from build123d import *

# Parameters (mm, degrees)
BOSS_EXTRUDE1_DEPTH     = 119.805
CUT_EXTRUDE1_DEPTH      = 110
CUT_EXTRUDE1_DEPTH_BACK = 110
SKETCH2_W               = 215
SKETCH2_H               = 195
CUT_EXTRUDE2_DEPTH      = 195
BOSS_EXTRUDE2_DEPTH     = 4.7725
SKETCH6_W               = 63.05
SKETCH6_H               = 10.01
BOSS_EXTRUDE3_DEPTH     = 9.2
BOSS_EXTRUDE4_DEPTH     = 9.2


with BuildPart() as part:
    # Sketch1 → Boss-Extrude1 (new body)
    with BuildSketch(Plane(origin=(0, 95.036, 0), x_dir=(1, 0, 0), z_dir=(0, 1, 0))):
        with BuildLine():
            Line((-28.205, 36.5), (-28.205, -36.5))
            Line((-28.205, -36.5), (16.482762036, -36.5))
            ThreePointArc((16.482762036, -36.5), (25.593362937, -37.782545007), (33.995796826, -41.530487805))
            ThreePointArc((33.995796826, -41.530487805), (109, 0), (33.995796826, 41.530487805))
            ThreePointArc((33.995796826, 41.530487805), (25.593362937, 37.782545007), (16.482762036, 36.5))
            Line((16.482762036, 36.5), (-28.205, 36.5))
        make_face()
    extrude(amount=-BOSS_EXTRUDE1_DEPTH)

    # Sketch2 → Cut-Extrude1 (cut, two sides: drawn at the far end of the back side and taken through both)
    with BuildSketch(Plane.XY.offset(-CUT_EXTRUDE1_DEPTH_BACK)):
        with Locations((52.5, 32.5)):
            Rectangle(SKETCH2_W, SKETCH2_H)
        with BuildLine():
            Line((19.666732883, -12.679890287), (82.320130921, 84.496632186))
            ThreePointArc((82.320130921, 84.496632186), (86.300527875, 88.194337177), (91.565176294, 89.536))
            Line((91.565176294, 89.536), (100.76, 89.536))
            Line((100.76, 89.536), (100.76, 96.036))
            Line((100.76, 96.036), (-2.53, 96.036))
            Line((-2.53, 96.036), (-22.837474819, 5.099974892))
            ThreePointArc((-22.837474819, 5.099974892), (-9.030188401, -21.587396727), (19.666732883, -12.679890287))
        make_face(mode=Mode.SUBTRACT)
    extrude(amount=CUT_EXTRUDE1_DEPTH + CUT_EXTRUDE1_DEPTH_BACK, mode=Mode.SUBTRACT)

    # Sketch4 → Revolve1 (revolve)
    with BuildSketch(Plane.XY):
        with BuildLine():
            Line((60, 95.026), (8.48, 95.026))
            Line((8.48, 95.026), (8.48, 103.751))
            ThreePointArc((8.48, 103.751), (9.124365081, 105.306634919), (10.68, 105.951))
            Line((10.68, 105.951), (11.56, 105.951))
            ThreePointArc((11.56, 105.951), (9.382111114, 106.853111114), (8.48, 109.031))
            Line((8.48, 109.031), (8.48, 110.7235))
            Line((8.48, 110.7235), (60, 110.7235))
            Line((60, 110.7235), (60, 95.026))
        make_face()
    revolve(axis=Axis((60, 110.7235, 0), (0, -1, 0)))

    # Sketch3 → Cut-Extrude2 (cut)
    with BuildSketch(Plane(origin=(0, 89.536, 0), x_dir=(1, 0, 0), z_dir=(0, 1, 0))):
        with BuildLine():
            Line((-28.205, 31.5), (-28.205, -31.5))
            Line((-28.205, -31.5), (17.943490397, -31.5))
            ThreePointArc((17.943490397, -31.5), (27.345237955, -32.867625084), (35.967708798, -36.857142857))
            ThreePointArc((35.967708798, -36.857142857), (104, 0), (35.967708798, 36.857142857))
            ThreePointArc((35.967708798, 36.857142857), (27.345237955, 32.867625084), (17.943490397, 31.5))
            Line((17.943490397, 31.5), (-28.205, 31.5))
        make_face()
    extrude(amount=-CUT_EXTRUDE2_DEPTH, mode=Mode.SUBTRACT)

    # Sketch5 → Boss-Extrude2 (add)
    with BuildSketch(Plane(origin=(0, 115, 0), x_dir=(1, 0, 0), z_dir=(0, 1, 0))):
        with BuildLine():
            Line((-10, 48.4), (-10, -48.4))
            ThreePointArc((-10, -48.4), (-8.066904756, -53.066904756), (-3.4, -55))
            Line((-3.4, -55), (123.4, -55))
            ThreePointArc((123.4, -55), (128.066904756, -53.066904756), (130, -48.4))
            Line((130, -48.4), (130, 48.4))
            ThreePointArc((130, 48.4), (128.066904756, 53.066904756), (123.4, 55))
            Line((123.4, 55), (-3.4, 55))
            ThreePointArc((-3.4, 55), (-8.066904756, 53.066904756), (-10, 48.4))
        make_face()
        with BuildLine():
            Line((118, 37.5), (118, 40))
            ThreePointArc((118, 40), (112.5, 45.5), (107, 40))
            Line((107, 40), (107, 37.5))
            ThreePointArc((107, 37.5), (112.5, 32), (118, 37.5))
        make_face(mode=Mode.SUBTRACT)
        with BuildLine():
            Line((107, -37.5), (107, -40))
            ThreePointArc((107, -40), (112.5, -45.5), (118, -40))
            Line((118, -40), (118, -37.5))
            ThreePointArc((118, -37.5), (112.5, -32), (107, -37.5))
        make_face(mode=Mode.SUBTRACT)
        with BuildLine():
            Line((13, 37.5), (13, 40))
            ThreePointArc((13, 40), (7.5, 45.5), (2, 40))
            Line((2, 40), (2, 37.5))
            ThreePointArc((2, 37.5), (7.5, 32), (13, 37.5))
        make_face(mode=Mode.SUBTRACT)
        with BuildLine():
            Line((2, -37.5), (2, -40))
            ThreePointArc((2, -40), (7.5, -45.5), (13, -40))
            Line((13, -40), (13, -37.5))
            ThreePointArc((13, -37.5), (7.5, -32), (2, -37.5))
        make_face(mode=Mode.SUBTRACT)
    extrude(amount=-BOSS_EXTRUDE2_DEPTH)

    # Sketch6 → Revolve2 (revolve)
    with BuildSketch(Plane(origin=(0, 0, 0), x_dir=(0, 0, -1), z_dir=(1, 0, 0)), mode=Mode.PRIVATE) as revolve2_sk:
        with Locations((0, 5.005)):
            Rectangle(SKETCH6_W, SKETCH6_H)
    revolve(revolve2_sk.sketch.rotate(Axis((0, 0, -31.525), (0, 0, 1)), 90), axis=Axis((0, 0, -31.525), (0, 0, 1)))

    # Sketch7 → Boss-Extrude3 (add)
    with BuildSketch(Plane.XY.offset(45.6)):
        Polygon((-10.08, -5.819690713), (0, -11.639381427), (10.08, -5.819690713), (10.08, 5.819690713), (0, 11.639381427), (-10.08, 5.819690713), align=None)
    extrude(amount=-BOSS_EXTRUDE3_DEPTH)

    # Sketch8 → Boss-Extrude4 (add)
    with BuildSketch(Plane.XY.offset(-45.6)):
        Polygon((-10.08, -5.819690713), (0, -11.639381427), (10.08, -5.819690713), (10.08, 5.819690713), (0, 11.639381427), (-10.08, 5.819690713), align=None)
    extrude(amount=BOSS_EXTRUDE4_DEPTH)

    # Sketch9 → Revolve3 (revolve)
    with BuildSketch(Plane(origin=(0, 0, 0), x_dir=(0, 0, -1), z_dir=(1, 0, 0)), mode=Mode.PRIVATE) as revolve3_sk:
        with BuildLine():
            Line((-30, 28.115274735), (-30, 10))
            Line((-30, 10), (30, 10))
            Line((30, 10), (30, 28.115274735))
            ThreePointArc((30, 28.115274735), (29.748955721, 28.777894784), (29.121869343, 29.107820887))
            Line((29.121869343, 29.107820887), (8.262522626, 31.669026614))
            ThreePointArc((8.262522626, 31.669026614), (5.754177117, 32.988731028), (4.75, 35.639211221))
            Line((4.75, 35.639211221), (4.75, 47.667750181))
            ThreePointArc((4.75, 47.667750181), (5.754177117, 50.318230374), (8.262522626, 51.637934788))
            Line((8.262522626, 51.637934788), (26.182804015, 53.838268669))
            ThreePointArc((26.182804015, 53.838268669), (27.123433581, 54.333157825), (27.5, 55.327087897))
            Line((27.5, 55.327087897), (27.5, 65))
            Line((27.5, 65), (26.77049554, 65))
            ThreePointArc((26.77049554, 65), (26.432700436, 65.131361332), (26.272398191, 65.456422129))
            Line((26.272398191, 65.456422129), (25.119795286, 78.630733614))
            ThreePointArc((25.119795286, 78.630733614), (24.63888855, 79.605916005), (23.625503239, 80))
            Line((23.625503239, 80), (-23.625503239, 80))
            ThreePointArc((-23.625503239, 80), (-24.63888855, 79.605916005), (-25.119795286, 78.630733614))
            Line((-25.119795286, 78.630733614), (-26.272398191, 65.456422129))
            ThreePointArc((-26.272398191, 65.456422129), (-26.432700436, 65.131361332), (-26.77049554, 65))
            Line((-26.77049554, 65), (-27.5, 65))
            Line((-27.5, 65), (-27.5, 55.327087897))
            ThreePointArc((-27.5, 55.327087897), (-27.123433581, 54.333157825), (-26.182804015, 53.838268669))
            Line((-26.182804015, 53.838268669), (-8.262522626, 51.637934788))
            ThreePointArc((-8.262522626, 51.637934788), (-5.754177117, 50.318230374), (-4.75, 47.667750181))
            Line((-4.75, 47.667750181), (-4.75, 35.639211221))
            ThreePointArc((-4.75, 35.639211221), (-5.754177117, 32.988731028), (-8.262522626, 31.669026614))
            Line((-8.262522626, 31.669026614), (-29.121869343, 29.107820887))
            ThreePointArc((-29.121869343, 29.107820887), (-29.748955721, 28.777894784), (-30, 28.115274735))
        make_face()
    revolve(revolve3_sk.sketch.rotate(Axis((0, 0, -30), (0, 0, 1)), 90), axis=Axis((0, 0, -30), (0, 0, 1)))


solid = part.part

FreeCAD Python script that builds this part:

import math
import FreeCAD as App
import Part
import Sketcher
from FreeCAD import Vector
Q = App.Units.Quantity

doc = App.newDocument("Part")
body = doc.addObject("PartDesign::Body", "Body")

# Sketch on XZ plane
sketch1 = doc.addObject("Sketcher::SketchObject", "Sketch")
body.addObject(sketch1)
sketch1.AttachmentSupport = (doc.XZ_Plane, [""])
sketch1.MapMode = "FlatFace"
sketch1.AttachmentOffset = App.Placement(Vector(0, 0, -95.036), App.Rotation())
sketch1.addGeometry([
    Part.LineSegment(Vector(-28, -36, 0), Vector(-28, 36, 0)),  # 0
    Part.LineSegment(Vector(-28, 36, 0), Vector(16, 36, 0)),  # 1
    Part.ArcOfCircle(Part.Circle(Vector(16, 69, 0), Vector(0, 0, 1), 33), math.radians(-90), math.radians(-58)),  # 2
    Part.ArcOfCircle(Part.Circle(Vector(60, 0, 0), Vector(0, 0, 1), 49), math.radians(-122), math.radians(122)),  # 3
    Part.ArcOfCircle(Part.Circle(Vector(16, -69, 0), Vector(0, 0, 1), 33), math.radians(58), math.radians(90)),  # 4
    Part.LineSegment(Vector(16, -36, 0), Vector(-28, -36, 0)),  # 5
], False)
sketch1.addConstraint([
    Sketcher.Constraint("Coincident", 0, 2, 1, 1),
    Sketcher.Constraint("Tangent", 1, 2, 2, 1),
    Sketcher.Constraint("Tangent", 2, 2, 3, 2),
    Sketcher.Constraint("Tangent", 3, 1, 4, 1),
    Sketcher.Constraint("Tangent", 4, 2, 5, 1),
    Sketcher.Constraint("Coincident", 5, 2, 0, 1),
    Sketcher.Constraint("Vertical", 0),
    Sketcher.Constraint("Horizontal", 1),
    Sketcher.Constraint("Horizontal", 5),
    Sketcher.Constraint("Equal", 2, 4),
    Sketcher.Constraint("Symmetric", 2, 3, 4, 3, -1),
    Sketcher.Constraint("Radius", 2, Q("33 mm")),
    Sketcher.Constraint("Radius", 3, Q("49 mm")),
    Sketcher.Constraint("DistanceY", 0, 1, 0, 2, Q("73 mm")),
    Sketcher.Constraint("DistanceX", -1, 1, 3, 3, Q("60 mm")),
    Sketcher.Constraint("DistanceX", 0, 2, -1, 1, Q("28.205 mm")),
])
pad1 = doc.addObject("PartDesign::Pad", "Pad")
body.addObject(pad1)
pad1.Profile = sketch1
pad1.Length = 119.805

# Sketch on XY plane
sketch2 = doc.addObject("Sketcher::SketchObject", "Sketch001")
body.addObject(sketch2)
sketch2.AttachmentSupport = (doc.XY_Plane, [""])
sketch2.MapMode = "FlatFace"
sketch2.addGeometry([
    Part.LineSegment(Vector(-55, 130, 0), Vector(-55, -65, 0)),  # 0
    Part.LineSegment(Vector(-55, -65, 0), Vector(160, -65, 0)),  # 1
    Part.LineSegment(Vector(160, -65, 0), Vector(160, 130, 0)),  # 2
    Part.LineSegment(Vector(160, 130, 0), Vector(-55, 130, 0)),  # 3
    Part.LineSegment(Vector(82, 84, 0), Vector(20, -13, 0)),  # 4
    Part.ArcOfCircle(Part.Circle(Vector(0, 0, 0), Vector(0, 0, 1), 23), math.radians(167), math.radians(327)),  # 5
    Part.LineSegment(Vector(-23, 5, 0), Vector(-3, 96, 0)),  # 6
    Part.LineSegment(Vector(-3, 96, 0), Vector(101, 96, 0)),  # 7
    Part.LineSegment(Vector(101, 96, 0), Vector(101, 90, 0)),  # 8
    Part.LineSegment(Vector(101, 90, 0), Vector(92, 90, 0)),  # 9
    Part.ArcOfCircle(Part.Circle(Vector(92, 79, 0), Vector(0, 0, 1), 11), math.radians(90), math.radians(147)),  # 10
], False)
sketch2.addConstraint([
    Sketcher.Constraint("Coincident", 0, 2, 1, 1),
    Sketcher.Constraint("Coincident", 1, 2, 2, 1),
    Sketcher.Constraint("Coincident", 2, 2, 3, 1),
    Sketcher.Constraint("Coincident", 3, 2, 0, 1),
    Sketcher.Constraint("Tangent", 4, 2, 5, 2),
    Sketcher.Constraint("Tangent", 5, 1, 6, 1),
    Sketcher.Constraint("Coincident", 6, 2, 7, 1),
    Sketcher.Constraint("Coincident", 7, 2, 8, 1),
    Sketcher.Constraint("Coincident", 8, 2, 9, 1),
    Sketcher.Constraint("Tangent", 9, 2, 10, 1),
    Sketcher.Constraint("Tangent", 10, 2, 4, 1),
    Sketcher.Constraint("Vertical", 0),
    Sketcher.Constraint("Horizontal", 1),
    Sketcher.Constraint("Vertical", 2),
    Sketcher.Constraint("Horizontal", 3),
    Sketcher.Constraint("Horizontal", 7),
    Sketcher.Constraint("Vertical", 8),
    Sketcher.Constraint("Horizontal", 9),
    Sketcher.Constraint("Coincident", 5, 3, -1, 1),
    Sketcher.Constraint("Radius", 10, Q("11 mm")),
    Sketcher.Constraint("Radius", 5, Q("23.4 mm")),
    Sketcher.Constraint("DistanceX", 1, 1, 1, 2, Q("215 mm")),
    Sketcher.Constraint("DistanceY", 0, 2, 0, 1, Q("195 mm")),
    Sketcher.Constraint("DistanceY", 8, 2, 8, 1, Q("6.5 mm")),
    Sketcher.Constraint("DistanceX", 0, 2, -1, 1, Q("55 mm")),
    Sketcher.Constraint("DistanceY", 0, 2, -1, 1, Q("65 mm")),
    Sketcher.Constraint("DistanceX", 7, 1, 7, 2, Q("103.29 mm")),
    Sketcher.Constraint("DistanceX", 6, 2, -1, 1, Q("2.53 mm")),
    Sketcher.Constraint("DistanceY", -1, 1, 10, 3, Q("78.536 mm")),
    Sketcher.Constraint("Distance", 4, Q("115.623202 mm")),
])
pocket1 = doc.addObject("PartDesign::Pocket", "Pocket")
body.addObject(pocket1)
pocket1.Profile = sketch2
pocket1.Type = "ThroughAll"
pocket1.Midplane = True

# Sketch on XY plane
sketch3 = doc.addObject("Sketcher::SketchObject", "Sketch002")
body.addObject(sketch3)
sketch3.AttachmentSupport = (doc.XY_Plane, [""])
sketch3.MapMode = "FlatFace"
sketch3.addGeometry([
    Part.LineSegment(Vector(8.5, 95, 0), Vector(60, 95, 0)),  # 0
    Part.LineSegment(Vector(60, 95, 0), Vector(60, 110.7, 0)),  # 1
    Part.LineSegment(Vector(60, 110.7, 0), Vector(8.5, 110.7, 0)),  # 2
    Part.LineSegment(Vector(8.5, 110.7, 0), Vector(8.5, 109, 0)),  # 3
    Part.ArcOfCircle(Part.Circle(Vector(11.6, 109, 0), Vector(0, 0, 1), 3.1), math.radians(180), math.radians(270)),  # 4
    Part.LineSegment(Vector(11.6, 106, 0), Vector(10.7, 106, 0)),  # 5
    Part.ArcOfCircle(Part.Circle(Vector(10.7, 103.8, 0), Vector(0, 0, 1), 2.2), math.radians(90), math.radians(180)),  # 6
    Part.LineSegment(Vector(8.5, 103.8, 0), Vector(8.5, 95, 0)),  # 7
], False)
sketch3.addGeometry(Part.LineSegment(Vector(60, 110.7, 0), Vector(60, 95, 0)), True)  # axis
sketch3.addConstraint([
    Sketcher.Constraint("Coincident", 0, 2, 1, 1),
    Sketcher.Constraint("Coincident", 1, 2, 2, 1),
    Sketcher.Constraint("Coincident", 2, 2, 3, 1),
    Sketcher.Constraint("Tangent", 3, 2, 4, 1),
    Sketcher.Constraint("Tangent", 4, 2, 5, 1),
    Sketcher.Constraint("Tangent", 5, 2, 6, 1),
    Sketcher.Constraint("Tangent", 6, 2, 7, 1),
    Sketcher.Constraint("Coincident", 7, 2, 0, 1),
    Sketcher.Constraint("Horizontal", 0),
    Sketcher.Constraint("Vertical", 1),
    Sketcher.Constraint("Horizontal", 2),
    Sketcher.Constraint("Vertical", 3),
    Sketcher.Constraint("Horizontal", 5),
    Sketcher.Constraint("Vertical", 7),
    Sketcher.Constraint("Vertical", 8),
    Sketcher.Constraint("Coincident", 8, 1, 1, 2),
    Sketcher.Constraint("Horizontal", 7, 2, 8, 2),
    Sketcher.Constraint("Vertical", 3, 2, 6, 2),
    Sketcher.Constraint("Radius", 6, Q("2.2 mm")),
    Sketcher.Constraint("Radius", 4, Q("3.08 mm")),
    Sketcher.Constraint("DistanceX", -1, 1, 0, 2, Q("60 mm")),
    Sketcher.Constraint("DistanceX", 0, 1, 0, 2, Q("51.52 mm")),
    Sketcher.Constraint("DistanceY", 7, 2, 7, 1, Q("8.725 mm")),
    Sketcher.Constraint("DistanceY", 1, 1, 1, 2, Q("15.6975 mm")),
    Sketcher.Constraint("DistanceY", -1, 1, 4, 3, Q("109.031 mm")),
])
revolution = doc.addObject("PartDesign::Revolution", "Revolution")
body.addObject(revolution)
revolution.Profile = sketch3
revolution.ReferenceAxis = (sketch3, ["Axis0"])
revolution.Angle = 360

# Sketch on XZ plane
sketch4 = doc.addObject("Sketcher::SketchObject", "Sketch003")
body.addObject(sketch4)
sketch4.AttachmentSupport = (doc.XZ_Plane, [""])
sketch4.MapMode = "FlatFace"
sketch4.AttachmentOffset = App.Placement(Vector(0, 0, -89.536), App.Rotation())
sketch4.addGeometry([
    Part.LineSegment(Vector(-28, -32, 0), Vector(-28, 32, 0)),  # 0
    Part.LineSegment(Vector(-28, 32, 0), Vector(18, 32, 0)),  # 1
    Part.ArcOfCircle(Part.Circle(Vector(18, 65, 0), Vector(0, 0, 1), 33), math.radians(-90), math.radians(-57)),  # 2
    Part.ArcOfCircle(Part.Circle(Vector(60, 0, 0), Vector(0, 0, 1), 44), math.radians(-123), math.radians(123)),  # 3
    Part.ArcOfCircle(Part.Circle(Vector(18, -65, 0), Vector(0, 0, 1), 33), math.radians(57), math.radians(90)),  # 4
    Part.LineSegment(Vector(18, -32, 0), Vector(-28, -32, 0)),  # 5
], False)
sketch4.addConstraint([
    Sketcher.Constraint("Coincident", 0, 2, 1, 1),
    Sketcher.Constraint("Tangent", 1, 2, 2, 1),
    Sketcher.Constraint("Tangent", 2, 2, 3, 2),
    Sketcher.Constraint("Tangent", 3, 1, 4, 1),
    Sketcher.Constraint("Tangent", 4, 2, 5, 1),
    Sketcher.Constraint("Coincident", 5, 2, 0, 1),
    Sketcher.Constraint("Vertical", 0),
    Sketcher.Constraint("Horizontal", 1),
    Sketcher.Constraint("Horizontal", 5),
    Sketcher.Constraint("Equal", 2, 4),
    Sketcher.Constraint("Symmetric", 2, 3, 4, 3, -1),
    Sketcher.Constraint("Radius", 2, Q("33 mm")),
    Sketcher.Constraint("Radius", 3, Q("44 mm")),
    Sketcher.Constraint("DistanceY", 0, 1, 0, 2, Q("63 mm")),
    Sketcher.Constraint("DistanceX", -1, 1, 3, 3, Q("60 mm")),
    Sketcher.Constraint("DistanceX", 0, 2, -1, 1, Q("28.205 mm")),
])
pocket2 = doc.addObject("PartDesign::Pocket", "Pocket001")
body.addObject(pocket2)
pocket2.Profile = sketch4
pocket2.Length = 195
pocket2.Reversed = True

# Sketch on XZ plane
sketch5 = doc.addObject("Sketcher::SketchObject", "Sketch004")
body.addObject(sketch5)
sketch5.AttachmentSupport = (doc.XZ_Plane, [""])
sketch5.MapMode = "FlatFace"
sketch5.AttachmentOffset = App.Placement(Vector(0, 0, -115), App.Rotation())
sketch5.addGeometry([
    Part.LineSegment(Vector(-10, -48.4, 0), Vector(-10, 48.4, 0)),  # 0
    Part.ArcOfCircle(Part.Circle(Vector(-3.4, 48.4, 0), Vector(0, 0, 1), 6.6), math.radians(90), math.radians(180)),  # 1
    Part.LineSegment(Vector(-3.4, 55, 0), Vector(123.4, 55, 0)),  # 2
    Part.ArcOfCircle(Part.Circle(Vector(123.4, 48.4, 0), Vector(0, 0, 1), 6.6), math.radians(0), math.radians(90)),  # 3
    Part.LineSegment(Vector(130, 48.4, 0), Vector(130, -48.4, 0)),  # 4
    Part.ArcOfCircle(Part.Circle(Vector(123.4, -48.4, 0), Vector(0, 0, 1), 6.6), math.radians(-90), math.radians(0)),  # 5
    Part.LineSegment(Vector(123.4, -55, 0), Vector(-3.4, -55, 0)),  # 6
    Part.ArcOfCircle(Part.Circle(Vector(-3.4, -48.4, 0), Vector(0, 0, 1), 6.6), math.radians(180), math.radians(270)),  # 7
    Part.LineSegment(Vector(2, 40, 0), Vector(2, 37.5, 0)),  # 8
    Part.ArcOfCircle(Part.Circle(Vector(7.5, 37.5, 0), Vector(0, 0, 1), 5.5), math.radians(180), math.radians(360)),  # 9
    Part.LineSegment(Vector(13, 37.5, 0), Vector(13, 40, 0)),  # 10
    Part.ArcOfCircle(Part.Circle(Vector(7.5, 40, 0), Vector(0, 0, 1), 5.5), math.radians(0), math.radians(180)),  # 11
    Part.LineSegment(Vector(107, 40, 0), Vector(107, 37.5, 0)),  # 12
    Part.ArcOfCircle(Part.Circle(Vector(112.5, 37.5, 0), Vector(0, 0, 1), 5.5), math.radians(180), math.radians(360)),  # 13
    Part.LineSegment(Vector(118, 37.5, 0), Vector(118, 40, 0)),  # 14
    Part.ArcOfCircle(Part.Circle(Vector(112.5, 40, 0), Vector(0, 0, 1), 5.5), math.radians(0), math.radians(180)),  # 15
    Part.LineSegment(Vector(13, -40, 0), Vector(13, -37.5, 0)),  # 16
    Part.ArcOfCircle(Part.Circle(Vector(7.5, -37.5, 0), Vector(0, 0, 1), 5.5), math.radians(0), math.radians(180)),  # 17
    Part.LineSegment(Vector(2, -37.5, 0), Vector(2, -40, 0)),  # 18
    Part.ArcOfCircle(Part.Circle(Vector(7.5, -40, 0), Vector(0, 0, 1), 5.5), math.radians(180), math.radians(360)),  # 19
    Part.LineSegment(Vector(118, -40, 0), Vector(118, -37.5, 0)),  # 20
    Part.ArcOfCircle(Part.Circle(Vector(112.5, -37.5, 0), Vector(0, 0, 1), 5.5), math.radians(0), math.radians(180)),  # 21
    Part.LineSegment(Vector(107, -37.5, 0), Vector(107, -40, 0)),  # 22
    Part.ArcOfCircle(Part.Circle(Vector(112.5, -40, 0), Vector(0, 0, 1), 5.5), math.radians(180), math.radians(360)),  # 23
], False)
sketch5.addConstraint([
    Sketcher.Constraint("Tangent", 0, 2, 1, 2),
    Sketcher.Constraint("Tangent", 1, 1, 2, 1),
    Sketcher.Constraint("Tangent", 2, 2, 3, 2),
    Sketcher.Constraint("Tangent", 3, 1, 4, 1),
    Sketcher.Constraint("Tangent", 4, 2, 5, 2),
    Sketcher.Constraint("Tangent", 5, 1, 6, 1),
    Sketcher.Constraint("Tangent", 6, 2, 7, 2),
    Sketcher.Constraint("Tangent", 7, 1, 0, 1),
    Sketcher.Constraint("Tangent", 8, 2, 9, 1),
    Sketcher.Constraint("Tangent", 9, 2, 10, 1),
    Sketcher.Constraint("Tangent", 10, 2, 11, 1),
    Sketcher.Constraint("Tangent", 11, 2, 8, 1),
    Sketcher.Constraint("Tangent", 12, 2, 13, 1),
    Sketcher.Constraint("Tangent", 13, 2, 14, 1),
    Sketcher.Constraint("Tangent", 14, 2, 15, 1),
    Sketcher.Constraint("Tangent", 15, 2, 12, 1),
    Sketcher.Constraint("Tangent", 16, 2, 17, 1),
    Sketcher.Constraint("Tangent", 17, 2, 18, 1),
    Sketcher.Constraint("Tangent", 18, 2, 19, 1),
    Sketcher.Constraint("Tangent", 19, 2, 16, 1),
    Sketcher.Constraint("Tangent", 20, 2, 21, 1),
    Sketcher.Constraint("Tangent", 21, 2, 22, 1),
    Sketcher.Constraint("Tangent", 22, 2, 23, 1),
    Sketcher.Constraint("Tangent", 23, 2, 20, 1),
    Sketcher.Constraint("Vertical", 0),
    Sketcher.Constraint("Horizontal", 2),
    Sketcher.Constraint("Vertical", 4),
    Sketcher.Constraint("Horizontal", 6),
    Sketcher.Constraint("Vertical", 8),
    Sketcher.Constraint("Vertical", 10),
    Sketcher.Constraint("Vertical", 12),
    Sketcher.Constraint("Vertical", 14),
    Sketcher.Constraint("Vertical", 16),
    Sketcher.Constraint("Vertical", 18),
    Sketcher.Constraint("Vertical", 20),
    Sketcher.Constraint("Vertical", 22),
    Sketcher.Constraint("Equal", 1, 3),
    Sketcher.Constraint("Equal", 3, 5),
    Sketcher.Constraint("Equal", 5, 7),
    Sketcher.Constraint("Equal", 11, 13),
    Sketcher.Constraint("Equal", 15, 17),
    Sketcher.Constraint("Equal", 19, 21),
    Sketcher.Constraint("Symmetric", 9, 3, 17, 3, -1),
    Sketcher.Constraint("Symmetric", 13, 3, 21, 3, -1),
    Sketcher.Constraint("Horizontal", 9, 3, 13, 3),
    Sketcher.Constraint("Horizontal", 11, 3, 15, 3),
    Sketcher.Constraint("Horizontal", 19, 3, 23, 3),
    Sketcher.Constraint("Equal", 14, 16),
    Sketcher.Constraint("Radius", 1, Q("6.6 mm")),
    Sketcher.Constraint("Radius", 9, Q("5.5 mm")),
    Sketcher.Constraint("DistanceX", 2, 1, 2, 2, Q("126.8 mm")),
    Sketcher.Constraint("DistanceY", 0, 1, 0, 2, Q("96.8 mm")),
    Sketcher.Constraint("DistanceY", 8, 2, 8, 1, Q("2.5 mm")),
    Sketcher.Constraint("DistanceY", -1, 1, 11, 3, Q("40 mm")),
    Sketcher.Constraint("DistanceX", 0, 2, -1, 1, Q("10 mm")),
    Sketcher.Constraint("DistanceY", -1, 1, 1, 1, Q("55 mm")),
    Sketcher.Constraint("DistanceX", -1, 1, 8, 2, Q("2 mm")),
    Sketcher.Constraint("DistanceX", -1, 1, 12, 2, Q("107 mm")),
])
pad2 = doc.addObject("PartDesign::Pad", "Pad001")
body.addObject(pad2)
pad2.Profile = sketch5
pad2.Length = 4.7725

# Sketch on YZ plane
sketch6 = doc.addObject("Sketcher::SketchObject", "Sketch005")
body.addObject(sketch6)
sketch6.AttachmentSupport = (doc.YZ_Plane, [""])
sketch6.MapMode = "FlatFace"
sketch6.addGeometry([
    Part.LineSegment(Vector(10, 32, 0), Vector(0, 32, 0)),
    Part.LineSegment(Vector(0, 32, 0), Vector(0, -32, 0)),
    Part.LineSegment(Vector(0, -32, 0), Vector(10, -32, 0)),
    Part.LineSegment(Vector(10, -32, 0), Vector(10, 32, 0)),
], False)
sketch6.addConstraint([
    Sketcher.Constraint("Coincident", 0, 2, 1, 1),
    Sketcher.Constraint("Coincident", 1, 2, 2, 1),
    Sketcher.Constraint("Coincident", 2, 2, 3, 1),
    Sketcher.Constraint("Coincident", 3, 2, 0, 1),
    Sketcher.Constraint("Horizontal", 0),
    Sketcher.Constraint("Vertical", 1),
    Sketcher.Constraint("Horizontal", 2),
    Sketcher.Constraint("Vertical", 3),
    Sketcher.Constraint("Symmetric", 0, 2, 1, 2, -1, 1),
    Sketcher.Constraint("DistanceX", 0, 2, 0, 1, Q("10.01 mm")),
    Sketcher.Constraint("DistanceY", 1, 2, 1, 1, Q("63.05 mm")),
])
revolution2 = doc.addObject("PartDesign::Revolution", "Revolution001")
body.addObject(revolution2)
revolution2.Profile = sketch6
revolution2.ReferenceAxis = (sketch6, ["V_Axis"])
revolution2.Angle = 360

# Sketch on XY plane
sketch7 = doc.addObject("Sketcher::SketchObject", "Sketch006")
body.addObject(sketch7)
sketch7.AttachmentSupport = (doc.XY_Plane, [""])
sketch7.MapMode = "FlatFace"
sketch7.AttachmentOffset = App.Placement(Vector(0, 0, 45.6), App.Rotation())
sketch7.addGeometry([
    Part.LineSegment(Vector(-10, -6, 0), Vector(0, -12, 0)),  # 0
    Part.LineSegment(Vector(0, -12, 0), Vector(10, -6, 0)),  # 1
    Part.LineSegment(Vector(10, -6, 0), Vector(10, 6, 0)),  # 2
    Part.LineSegment(Vector(10, 6, 0), Vector(0, 12, 0)),  # 3
    Part.LineSegment(Vector(0, 12, 0), Vector(-10, 6, 0)),  # 4
    Part.LineSegment(Vector(-10, 6, 0), Vector(-10, -6, 0)),  # 5
], False)
sketch7.addConstraint([
    Sketcher.Constraint("Coincident", 0, 2, 1, 1),
    Sketcher.Constraint("Coincident", 1, 2, 2, 1),
    Sketcher.Constraint("Coincident", 2, 2, 3, 1),
    Sketcher.Constraint("Coincident", 3, 2, 4, 1),
    Sketcher.Constraint("Coincident", 4, 2, 5, 1),
    Sketcher.Constraint("Coincident", 5, 2, 0, 1),
    Sketcher.Constraint("Vertical", 2),
    Sketcher.Constraint("Vertical", 5),
    Sketcher.Constraint("Symmetric", 0, 2, 3, 2, -1, 1),
    Sketcher.Constraint("Symmetric", 1, 2, 4, 2, -1, 1),
    Sketcher.Constraint("PointOnObject", 0, 2, -2),
    Sketcher.Constraint("Parallel", 0, 3),
    Sketcher.Constraint("Horizontal", 2, 2, 4, 2),
    Sketcher.Constraint("Angle", 0, Q("-30 deg")),
    Sketcher.Constraint("DistanceX", -1, 1, 1, 2, Q("10.08 mm")),
    Sketcher.Constraint("DistanceY", 2, 1, 2, 2, Q("11.639381 mm")),
])
pad3 = doc.addObject("PartDesign::Pad", "Pad002")
body.addObject(pad3)
pad3.Profile = sketch7
pad3.Length = 9.2
pad3.Reversed = True

# Sketch on XY plane
sketch8 = doc.addObject("Sketcher::SketchObject", "Sketch007")
body.addObject(sketch8)
sketch8.AttachmentSupport = (doc.XY_Plane, [""])
sketch8.MapMode = "FlatFace"
sketch8.AttachmentOffset = App.Placement(Vector(0, 0, -45.6), App.Rotation())
sketch8.addGeometry([
    Part.LineSegment(Vector(-10, -6, 0), Vector(0, -12, 0)),  # 0
    Part.LineSegment(Vector(0, -12, 0), Vector(10, -6, 0)),  # 1
    Part.LineSegment(Vector(10, -6, 0), Vector(10, 6, 0)),  # 2
    Part.LineSegment(Vector(10, 6, 0), Vector(0, 12, 0)),  # 3
    Part.LineSegment(Vector(0, 12, 0), Vector(-10, 6, 0)),  # 4
    Part.LineSegment(Vector(-10, 6, 0), Vector(-10, -6, 0)),  # 5
], False)
sketch8.addConstraint([
    Sketcher.Constraint("Coincident", 0, 2, 1, 1),
    Sketcher.Constraint("Coincident", 1, 2, 2, 1),
    Sketcher.Constraint("Coincident", 2, 2, 3, 1),
    Sketcher.Constraint("Coincident", 3, 2, 4, 1),
    Sketcher.Constraint("Coincident", 4, 2, 5, 1),
    Sketcher.Constraint("Coincident", 5, 2, 0, 1),
    Sketcher.Constraint("Vertical", 2),
    Sketcher.Constraint("Vertical", 5),
    Sketcher.Constraint("Symmetric", 0, 2, 3, 2, -1, 1),
    Sketcher.Constraint("Symmetric", 1, 2, 4, 2, -1, 1),
    Sketcher.Constraint("PointOnObject", 0, 2, -2),
    Sketcher.Constraint("Parallel", 0, 3),
    Sketcher.Constraint("Horizontal", 2, 2, 4, 2),
    Sketcher.Constraint("Angle", 0, Q("-30 deg")),
    Sketcher.Constraint("DistanceX", -1, 1, 1, 2, Q("10.08 mm")),
    Sketcher.Constraint("DistanceY", 2, 1, 2, 2, Q("11.639381 mm")),
])
pad4 = doc.addObject("PartDesign::Pad", "Pad003")
body.addObject(pad4)
pad4.Profile = sketch8
pad4.Length = 9.2

# Sketch on YZ plane
sketch9 = doc.addObject("Sketcher::SketchObject", "Sketch008")
body.addObject(sketch9)
sketch9.AttachmentSupport = (doc.YZ_Plane, [""])
sketch9.MapMode = "FlatFace"
sketch9.addGeometry([
    Part.LineSegment(Vector(28.1, 30, 0), Vector(10, 30, 0)),  # 0
    Part.LineSegment(Vector(10, 30, 0), Vector(10, -30, 0)),  # 1
    Part.LineSegment(Vector(10, -30, 0), Vector(28.1, -30, 0)),  # 2
    Part.ArcOfCircle(Part.Circle(Vector(28.1, -29, 0), Vector(0, 0, 1), 1), math.radians(-90), math.radians(-7)),  # 3
    Part.LineSegment(Vector(29.1, -29.1, 0), Vector(31.7, -8.3, 0)),  # 4
    Part.ArcOfCircle(Part.Circle(Vector(35.6, -8.8, 0), Vector(0, 0, 1), 4), math.radians(90), math.radians(173)),  # 5
    Part.LineSegment(Vector(35.6, -4.8, 0), Vector(47.7, -4.8, 0)),  # 6
    Part.ArcOfCircle(Part.Circle(Vector(47.7, -8.8, 0), Vector(0, 0, 1), 4), math.radians(7), math.radians(90)),  # 7
    Part.LineSegment(Vector(51.6, -8.3, 0), Vector(53.8, -26.2, 0)),  # 8
    Part.ArcOfCircle(Part.Circle(Vector(55.3, -26, 0), Vector(0, 0, 1), 1.5), math.radians(-173), math.radians(-90)),  # 9
    Part.LineSegment(Vector(55.3, -27.5, 0), Vector(65, -27.5, 0)),  # 10
    Part.LineSegment(Vector(65, -27.5, 0), Vector(65, -26.8, 0)),  # 11
    Part.ArcOfCircle(Part.Circle(Vector(65.5, -26.8, 0), Vector(0, 0, 1), 0.5), math.radians(95), math.radians(180)),  # 12
    Part.LineSegment(Vector(65.5, -26.3, 0), Vector(78.6, -25.1, 0)),  # 13
    Part.ArcOfCircle(Part.Circle(Vector(78.5, -23.6, 0), Vector(0, 0, 1), 1.5), math.radians(-85), math.radians(0)),  # 14
    Part.LineSegment(Vector(80, -23.6, 0), Vector(80, 23.6, 0)),  # 15
    Part.ArcOfCircle(Part.Circle(Vector(78.5, 23.6, 0), Vector(0, 0, 1), 1.5), math.radians(0), math.radians(85)),  # 16
    Part.LineSegment(Vector(78.6, 25.1, 0), Vector(65.5, 26.3, 0)),  # 17
    Part.ArcOfCircle(Part.Circle(Vector(65.5, 26.8, 0), Vector(0, 0, 1), 0.5), math.radians(180), math.radians(265)),  # 18
    Part.LineSegment(Vector(65, 26.8, 0), Vector(65, 27.5, 0)),  # 19
    Part.LineSegment(Vector(65, 27.5, 0), Vector(55.3, 27.5, 0)),  # 20
    Part.ArcOfCircle(Part.Circle(Vector(55.3, 26, 0), Vector(0, 0, 1), 1.5), math.radians(90), math.radians(173)),  # 21
    Part.LineSegment(Vector(53.8, 26.2, 0), Vector(51.6, 8.3, 0)),  # 22
    Part.ArcOfCircle(Part.Circle(Vector(47.7, 8.8, 0), Vector(0, 0, 1), 4), math.radians(-90), math.radians(-7)),  # 23
    Part.LineSegment(Vector(47.7, 4.8, 0), Vector(35.6, 4.8, 0)),  # 24
    Part.ArcOfCircle(Part.Circle(Vector(35.6, 8.8, 0), Vector(0, 0, 1), 4), math.radians(-173), math.radians(-90)),  # 25
    Part.LineSegment(Vector(31.7, 8.3, 0), Vector(29.1, 29.1, 0)),  # 26
    Part.ArcOfCircle(Part.Circle(Vector(28.1, 29, 0), Vector(0, 0, 1), 1), math.radians(7), math.radians(90)),  # 27
], False)
sketch9.addConstraint([
    Sketcher.Constraint("Coincident", 0, 2, 1, 1),
    Sketcher.Constraint("Coincident", 1, 2, 2, 1),
    Sketcher.Constraint("Tangent", 2, 2, 3, 1),
    Sketcher.Constraint("Tangent", 3, 2, 4, 1),
    Sketcher.Constraint("Tangent", 4, 2, 5, 2),
    Sketcher.Constraint("Tangent", 5, 1, 6, 1),
    Sketcher.Constraint("Tangent", 6, 2, 7, 2),
    Sketcher.Constraint("Tangent", 7, 1, 8, 1),
    Sketcher.Constraint("Tangent", 8, 2, 9, 1),
    Sketcher.Constraint("Tangent", 9, 2, 10, 1),
    Sketcher.Constraint("Coincident", 10, 2, 11, 1),
    Sketcher.Constraint("Tangent", 11, 2, 12, 2),
    Sketcher.Constraint("Tangent", 12, 1, 13, 1),
    Sketcher.Constraint("Tangent", 13, 2, 14, 1),
    Sketcher.Constraint("Tangent", 14, 2, 15, 1),
    Sketcher.Constraint("Tangent", 15, 2, 16, 1),
    Sketcher.Constraint("Tangent", 16, 2, 17, 1),
    Sketcher.Constraint("Tangent", 17, 2, 18, 2),
    Sketcher.Constraint("Tangent", 18, 1, 19, 1),
    Sketcher.Constraint("Coincident", 19, 2, 20, 1),
    Sketcher.Constraint("Tangent", 20, 2, 21, 1),
    Sketcher.Constraint("Tangent", 21, 2, 22, 1),
    Sketcher.Constraint("Tangent", 22, 2, 23, 2),
    Sketcher.Constraint("Tangent", 23, 1, 24, 1),
    Sketcher.Constraint("Tangent", 24, 2, 25, 2),
    Sketcher.Constraint("Tangent", 25, 1, 26, 1),
    Sketcher.Constraint("Tangent", 26, 2, 27, 1),
    Sketcher.Constraint("Tangent", 27, 2, 0, 1),
    Sketcher.Constraint("Horizontal", 0),
    Sketcher.Constraint("Vertical", 1),
    Sketcher.Constraint("Horizontal", 2),
    Sketcher.Constraint("Horizontal", 6),
    Sketcher.Constraint("Horizontal", 10),
    Sketcher.Constraint("Vertical", 11),
    Sketcher.Constraint("Vertical", 15),
    Sketcher.Constraint("Vertical", 19),
    Sketcher.Constraint("Horizontal", 20),
    Sketcher.Constraint("Horizontal", 24),
    Sketcher.Constraint("Equal", 5, 7),
    Sketcher.Constraint("Equal", 9, 14),
    Sketcher.Constraint("Equal", 14, 16),
    Sketcher.Constraint("Equal", 12, 18),
    Sketcher.Constraint("Equal", 16, 21),
    Sketcher.Constraint("Equal", 7, 23),
    Sketcher.Constraint("Equal", 23, 25),
    Sketcher.Constraint("Equal", 3, 27),
    Sketcher.Constraint("Symmetric", 12, 3, 18, 3, -1),
    Sketcher.Constraint("Symmetric", 9, 3, 21, 3, -1),
    Sketcher.Constraint("Symmetric", 7, 3, 23, 3, -1),
    Sketcher.Constraint("Symmetric", 3, 3, 27, 3, -1),
    Sketcher.Constraint("Parallel", 4, 22),
    Sketcher.Constraint("Parallel", 8, 26),
    Sketcher.Constraint("Vertical", 13, 2, 16, 2),
    Sketcher.Constraint("Radius", 3, Q("1 mm")),
    Sketcher.Constraint("Radius", 5, Q("4 mm")),
    Sketcher.Constraint("Radius", 9, Q("1.5 mm")),
    Sketcher.Constraint("Radius", 12, Q("0.5 mm")),
    Sketcher.Constraint("DistanceY", 1, 2, 1, 1, Q("60 mm")),
    Sketcher.Constraint("Angle", 4, Q("83 deg")),
    Sketcher.Constraint("Angle", 13, Q("5 deg")),
    Sketcher.Constraint("DistanceY", 9, 3, -1, 1, Q("26 mm")),
    Sketcher.Constraint("DistanceX", -1, 1, 0, 2, Q("10 mm")),
    Sketcher.Constraint("DistanceX", -1, 1, 10, 2, Q("65 mm")),
    Sketcher.Constraint("DistanceX", -1, 1, 14, 2, Q("80 mm")),
    Sketcher.Constraint("DistanceY", 7, 3, 23, 3, Q("17.5 mm")),
    Sketcher.Constraint("DistanceY", 12, 3, 16, 3, Q("50.395999 mm")),
    Sketcher.Constraint("DistanceX", 6, 1, 6, 2, Q("12.028539 mm")),
    Sketcher.Constraint("DistanceX", 0, 2, 0, 1, Q("18.115275 mm")),
])
revolution3 = doc.addObject("PartDesign::Revolution", "Revolution002")
body.addObject(revolution3)
revolution3.Profile = sketch9
revolution3.ReferenceAxis = (sketch9, ["V_Axis"])
revolution3.Angle = 360

doc.recompute()
